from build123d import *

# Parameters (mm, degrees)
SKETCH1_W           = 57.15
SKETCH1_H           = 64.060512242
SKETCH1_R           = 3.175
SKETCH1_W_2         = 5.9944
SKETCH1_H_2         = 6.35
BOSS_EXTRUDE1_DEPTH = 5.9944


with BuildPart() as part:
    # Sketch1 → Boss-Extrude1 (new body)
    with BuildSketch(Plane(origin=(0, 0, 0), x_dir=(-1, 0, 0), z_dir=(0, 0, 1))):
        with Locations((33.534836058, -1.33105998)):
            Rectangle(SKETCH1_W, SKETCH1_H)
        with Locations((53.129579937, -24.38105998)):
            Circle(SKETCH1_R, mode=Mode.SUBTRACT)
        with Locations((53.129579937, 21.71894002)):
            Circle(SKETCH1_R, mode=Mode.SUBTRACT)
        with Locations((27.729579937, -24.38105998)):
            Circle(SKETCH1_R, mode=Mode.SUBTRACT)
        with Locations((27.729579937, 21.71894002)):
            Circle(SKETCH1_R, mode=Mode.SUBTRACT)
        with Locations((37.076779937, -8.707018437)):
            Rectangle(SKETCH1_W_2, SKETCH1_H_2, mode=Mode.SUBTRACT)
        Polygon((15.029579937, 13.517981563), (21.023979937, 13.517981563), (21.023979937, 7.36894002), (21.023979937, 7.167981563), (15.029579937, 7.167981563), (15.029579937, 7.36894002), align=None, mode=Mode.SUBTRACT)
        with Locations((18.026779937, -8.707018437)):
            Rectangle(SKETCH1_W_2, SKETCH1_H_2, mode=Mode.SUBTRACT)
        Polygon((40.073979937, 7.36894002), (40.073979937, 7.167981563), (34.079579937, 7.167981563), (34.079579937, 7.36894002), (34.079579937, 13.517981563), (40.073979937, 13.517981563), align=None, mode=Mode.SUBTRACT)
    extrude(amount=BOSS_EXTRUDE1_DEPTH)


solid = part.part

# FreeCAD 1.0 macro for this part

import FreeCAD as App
import Part
import Sketcher
Q = App.Units.Quantity

doc = App.newDocument("Part")
body = doc.addObject("PartDesign::Body", "Body")

# Sketch on XY plane
sketch1 = body.newObject("Sketcher::SketchObject", "Sketch")
sketch1.AttachmentSupport = (doc.getObject("XY_Plane"), [""])
sketch1.MapMode = "FlatFace"
sketch1.addGeometry(Part.LineSegment(App.Vector(-4.959836, -30.699196, 0), App.Vector(-4.959836, 33.361316, 0)), False)
sketch1.addGeometry(Part.LineSegment(App.Vector(-4.959836, 33.361316, 0), App.Vector(-62.109836, 33.361316, 0)), False)
sketch1.addGeometry(Part.LineSegment(App.Vector(-62.109836, 33.361316, 0), App.Vector(-62.109836, -30.699196, 0)), False)
sketch1.addGeometry(Part.LineSegment(App.Vector(-62.109836, -30.699196, 0), App.Vector(-4.959836, -30.699196, 0)), False)
sketch1.addGeometry(Part.Circle(App.Vector(-27.72958, 24.38106, 0), App.Vector(0, 0, 1), 3.175), False)
sketch1.addGeometry(Part.LineSegment(App.Vector(-21.02398, 11.882018, 0), App.Vector(-15.02958, 11.882018, 0)), False)
sketch1.addGeometry(Part.LineSegment(App.Vector(-15.02958, 11.882018, 0), App.Vector(-15.02958, 5.532018, 0)), False)
sketch1.addGeometry(Part.LineSegment(App.Vector(-15.02958, 5.532018, 0), App.Vector(-21.02398, 5.532018, 0)), False)
sketch1.addGeometry(Part.LineSegment(App.Vector(-21.02398, 5.532018, 0), App.Vector(-21.02398, 11.882018, 0)), False)
sketch1.addGeometry(Part.Circle(App.Vector(-53.12958, 24.38106, 0), App.Vector(0, 0, 1), 3.175), False)
sketch1.addGeometry(Part.LineSegment(App.Vector(-40.07398, 11.882018, 0), App.Vector(-34.07958, 11.882018, 0)), False)
sketch1.addGeometry(Part.LineSegment(App.Vector(-34.07958, 11.882018, 0), App.Vector(-34.07958, 5.532018, 0)), False)
sketch1.addGeometry(Part.LineSegment(App.Vector(-34.07958, 5.532018, 0), App.Vector(-40.07398, 5.532018, 0)), False)
sketch1.addGeometry(Part.LineSegment(App.Vector(-40.07398, 5.532018, 0), App.Vector(-40.07398, 11.882018, 0)), False)
sketch1.addGeometry(Part.LineSegment(App.Vector(-15.02958, -7.167982, 0), App.Vector(-15.02958, -13.517982, 0)), False)
sketch1.addGeometry(Part.LineSegment(App.Vector(-15.02958, -13.517982, 0), App.Vector(-21.02398, -13.517982, 0)), False)
sketch1.addGeometry(Part.LineSegment(App.Vector(-21.02398, -13.517982, 0), App.Vector(-21.02398, -7.167982, 0)), False)
sketch1.addGeometry(Part.LineSegment(App.Vector(-21.02398, -7.167982, 0), App.Vector(-15.02958, -7.167982, 0)), False)
sketch1.addGeometry(Part.Circle(App.Vector(-27.72958, -21.71894, 0), App.Vector(0, 0, 1), 3.175), False)
sketch1.addGeometry(Part.LineSegment(App.Vector(-40.07398, -13.517982, 0), App.Vector(-40.07398, -7.167982, 0)), False)
sketch1.addGeometry(Part.LineSegment(App.Vector(-40.07398, -7.167982, 0), App.Vector(-34.07958, -7.167982, 0)), False)
sketch1.addGeometry(Part.LineSegment(App.Vector(-34.07958, -7.167982, 0), App.Vector(-34.07958, -13.517982, 0)), False)
sketch1.addGeometry(Part.LineSegment(App.Vector(-34.07958, -13.517982, 0), App.Vector(-40.07398, -13.517982, 0)), False)
sketch1.addGeometry(Part.Circle(App.Vector(-53.12958, -21.71894, 0), App.Vector(0, 0, 1), 3.175), False)
sketch1.addConstraint(Sketcher.Constraint("Coincident", 0, 2, 1, 1))
sketch1.addConstraint(Sketcher.Constraint("Coincident", 1, 2, 2, 1))
sketch1.addConstraint(Sketcher.Constraint("Coincident", 2, 2, 3, 1))
sketch1.addConstraint(Sketcher.Constraint("Coincident", 3, 2, 0, 1))
sketch1.addConstraint(Sketcher.Constraint("Coincident", 5, 2, 6, 1))
sketch1.addConstraint(Sketcher.Constraint("Coincident", 6, 2, 7, 1))
sketch1.addConstraint(Sketcher.Constraint("Coincident", 7, 2, 8, 1))
sketch1.addConstraint(Sketcher.Constraint("Coincident", 8, 2, 5, 1))
sketch1.addConstraint(Sketcher.Constraint("Coincident", 10, 2, 11, 1))
sketch1.addConstraint(Sketcher.Constraint("Coincident", 11, 2, 12, 1))
sketch1.addConstraint(Sketcher.Constraint("Coincident", 12, 2, 13, 1))
sketch1.addConstraint(Sketcher.Constraint("Coincident", 13, 2, 10, 1))
sketch1.addConstraint(Sketcher.Constraint("Coincident", 14, 2, 15, 1))
sketch1.addConstraint(Sketcher.Constraint("Coincident", 15, 2, 16, 1))
sketch1.addConstraint(Sketcher.Constraint("Coincident", 16, 2, 17, 1))
sketch1.addConstraint(Sketcher.Constraint("Coincident", 17, 2, 14, 1))
sketch1.addConstraint(Sketcher.Constraint("Coincident", 19, 2, 20, 1))
sketch1.addConstraint(Sketcher.Constraint("Coincident", 20, 2, 21, 1))
sketch1.addConstraint(Sketcher.Constraint("Coincident", 21, 2, 22, 1))
sketch1.addConstraint(Sketcher.Constraint("Coincident", 22, 2, 19, 1))
sketch1.addConstraint(Sketcher.Constraint("Vertical", 0))
sketch1.addConstraint(Sketcher.Constraint("Horizontal", 1))
sketch1.addConstraint(Sketcher.Constraint("Vertical", 2))
sketch1.addConstraint(Sketcher.Constraint("Horizontal", 3))
sketch1.addConstraint(Sketcher.Constraint("Horizontal", 5))
sketch1.addConstraint(Sketcher.Constraint("Vertical", 6))
sketch1.addConstraint(Sketcher.Constraint("Horizontal", 7))
sketch1.addConstraint(Sketcher.Constraint("Vertical", 8))
sketch1.addConstraint(Sketcher.Constraint("Horizontal", 10))
sketch1.addConstraint(Sketcher.Constraint("Vertical", 11))
sketch1.addConstraint(Sketcher.Constraint("Horizontal", 12))
sketch1.addConstraint(Sketcher.Constraint("Vertical", 13))
sketch1.addConstraint(Sketcher.Constraint("Vertical", 14))
sketch1.addConstraint(Sketcher.Constraint("Horizontal", 15))
sketch1.addConstraint(Sketcher.Constraint("Vertical", 16))
sketch1.addConstraint(Sketcher.Constraint("Horizontal", 17))
sketch1.addConstraint(Sketcher.Constraint("Vertical", 19))
sketch1.addConstraint(Sketcher.Constraint("Horizontal", 20))
sketch1.addConstraint(Sketcher.Constraint("Vertical", 21))
sketch1.addConstraint(Sketcher.Constraint("Horizontal", 22))
sketch1.addConstraint(Sketcher.Constraint("Equal", 4, 9))
sketch1.addConstraint(Sketcher.Constraint("Equal", 9, 18))
sketch1.addConstraint(Sketcher.Constraint("Equal", 18, 23))
sketch1.addConstraint(Sketcher.Constraint("Horizontal", 4, 3, 9, 3))
sketch1.addConstraint(Sketcher.Constraint("Horizontal", 18, 3, 23, 3))
sketch1.addConstraint(Sketcher.Constraint("Horizontal", 8, 2, 10, 2))
sketch1.addConstraint(Sketcher.Constraint("Horizontal", 7, 2, 11, 2))
sketch1.addConstraint(Sketcher.Constraint("Horizontal", 17, 2, 19, 2))
sketch1.addConstraint(Sketcher.Constraint("Horizontal", 15, 2, 21, 2))
sketch1.addConstraint(Sketcher.Constraint("Vertical", 4, 3, 18, 3))
sketch1.addConstraint(Sketcher.Constraint("Vertical", 9, 3, 23, 3))
sketch1.addConstraint(Sketcher.Constraint("Vertical", 6, 2, 14, 2))
sketch1.addConstraint(Sketcher.Constraint("Vertical", 8, 2, 15, 2))
sketch1.addConstraint(Sketcher.Constraint("Vertical", 13, 2, 19, 2))
sketch1.addConstraint(Sketcher.Constraint("Vertical", 11, 2, 20, 2))
sketch1.addConstraint(Sketcher.Constraint("Equal", 7, 10))
sketch1.addConstraint(Sketcher.Constraint("Equal", 13, 14))
sketch1.addConstraint(Sketcher.Constraint("Diameter", 4, Q("0.25 in")))
sketch1.addConstraint(Sketcher.Constraint("DistanceX", 9, 3, 4, 3, Q("1 in")))
sketch1.addConstraint(Sketcher.Constraint("DistanceY", 14, 2, 5, 2, Q("1 in")))
sketch1.addConstraint(Sketcher.Constraint("DistanceX", 1, 2, 1, 1, Q("2.25 in")))
sketch1.addConstraint(Sketcher.Constraint("DistanceY", 6, 2, 6, 1, Q("0.25 in")))
sketch1.addConstraint(Sketcher.Constraint("DistanceX", 4, 3, 5, 2, Q("0.5 in")))
sketch1.addConstraint(Sketcher.Constraint("DistanceX", 5, 1, 5, 2, Q("0.236 in")))
sketch1.addConstraint(Sketcher.Constraint("DistanceX", 10, 2, 4, 3, Q("0.25 in")))
sketch1.addConstraint(Sketcher.Constraint("DistanceY", 18, 3, 4, 3, Q("46.1 mm")))
sketch1.addConstraint(Sketcher.Constraint("DistanceY", 0, 1, 0, 2, Q("64.060512 mm")))
sketch1.addConstraint(Sketcher.Constraint("DistanceX", 4, 3, -1, 1, Q("27.72958 mm")))
sketch1.addConstraint(Sketcher.Constraint("DistanceY", -1, 1, 4, 3, Q("24.38106 mm")))
sketch1.addConstraint(Sketcher.Constraint("DistanceY", -1, 1, 5, 2, Q("11.882018 mm")))
sketch1.addConstraint(Sketcher.Constraint("DistanceX", 0, 2, -1, 1, Q("4.959836 mm")))
sketch1.addConstraint(Sketcher.Constraint("DistanceY", -1, 1, 0, 2, Q("33.361316 mm")))
pad1 = body.newObject("PartDesign::Pad", "Pad")
pad1.Profile = sketch1
pad1.Length = Q("0.236 in")

doc.recompute()
